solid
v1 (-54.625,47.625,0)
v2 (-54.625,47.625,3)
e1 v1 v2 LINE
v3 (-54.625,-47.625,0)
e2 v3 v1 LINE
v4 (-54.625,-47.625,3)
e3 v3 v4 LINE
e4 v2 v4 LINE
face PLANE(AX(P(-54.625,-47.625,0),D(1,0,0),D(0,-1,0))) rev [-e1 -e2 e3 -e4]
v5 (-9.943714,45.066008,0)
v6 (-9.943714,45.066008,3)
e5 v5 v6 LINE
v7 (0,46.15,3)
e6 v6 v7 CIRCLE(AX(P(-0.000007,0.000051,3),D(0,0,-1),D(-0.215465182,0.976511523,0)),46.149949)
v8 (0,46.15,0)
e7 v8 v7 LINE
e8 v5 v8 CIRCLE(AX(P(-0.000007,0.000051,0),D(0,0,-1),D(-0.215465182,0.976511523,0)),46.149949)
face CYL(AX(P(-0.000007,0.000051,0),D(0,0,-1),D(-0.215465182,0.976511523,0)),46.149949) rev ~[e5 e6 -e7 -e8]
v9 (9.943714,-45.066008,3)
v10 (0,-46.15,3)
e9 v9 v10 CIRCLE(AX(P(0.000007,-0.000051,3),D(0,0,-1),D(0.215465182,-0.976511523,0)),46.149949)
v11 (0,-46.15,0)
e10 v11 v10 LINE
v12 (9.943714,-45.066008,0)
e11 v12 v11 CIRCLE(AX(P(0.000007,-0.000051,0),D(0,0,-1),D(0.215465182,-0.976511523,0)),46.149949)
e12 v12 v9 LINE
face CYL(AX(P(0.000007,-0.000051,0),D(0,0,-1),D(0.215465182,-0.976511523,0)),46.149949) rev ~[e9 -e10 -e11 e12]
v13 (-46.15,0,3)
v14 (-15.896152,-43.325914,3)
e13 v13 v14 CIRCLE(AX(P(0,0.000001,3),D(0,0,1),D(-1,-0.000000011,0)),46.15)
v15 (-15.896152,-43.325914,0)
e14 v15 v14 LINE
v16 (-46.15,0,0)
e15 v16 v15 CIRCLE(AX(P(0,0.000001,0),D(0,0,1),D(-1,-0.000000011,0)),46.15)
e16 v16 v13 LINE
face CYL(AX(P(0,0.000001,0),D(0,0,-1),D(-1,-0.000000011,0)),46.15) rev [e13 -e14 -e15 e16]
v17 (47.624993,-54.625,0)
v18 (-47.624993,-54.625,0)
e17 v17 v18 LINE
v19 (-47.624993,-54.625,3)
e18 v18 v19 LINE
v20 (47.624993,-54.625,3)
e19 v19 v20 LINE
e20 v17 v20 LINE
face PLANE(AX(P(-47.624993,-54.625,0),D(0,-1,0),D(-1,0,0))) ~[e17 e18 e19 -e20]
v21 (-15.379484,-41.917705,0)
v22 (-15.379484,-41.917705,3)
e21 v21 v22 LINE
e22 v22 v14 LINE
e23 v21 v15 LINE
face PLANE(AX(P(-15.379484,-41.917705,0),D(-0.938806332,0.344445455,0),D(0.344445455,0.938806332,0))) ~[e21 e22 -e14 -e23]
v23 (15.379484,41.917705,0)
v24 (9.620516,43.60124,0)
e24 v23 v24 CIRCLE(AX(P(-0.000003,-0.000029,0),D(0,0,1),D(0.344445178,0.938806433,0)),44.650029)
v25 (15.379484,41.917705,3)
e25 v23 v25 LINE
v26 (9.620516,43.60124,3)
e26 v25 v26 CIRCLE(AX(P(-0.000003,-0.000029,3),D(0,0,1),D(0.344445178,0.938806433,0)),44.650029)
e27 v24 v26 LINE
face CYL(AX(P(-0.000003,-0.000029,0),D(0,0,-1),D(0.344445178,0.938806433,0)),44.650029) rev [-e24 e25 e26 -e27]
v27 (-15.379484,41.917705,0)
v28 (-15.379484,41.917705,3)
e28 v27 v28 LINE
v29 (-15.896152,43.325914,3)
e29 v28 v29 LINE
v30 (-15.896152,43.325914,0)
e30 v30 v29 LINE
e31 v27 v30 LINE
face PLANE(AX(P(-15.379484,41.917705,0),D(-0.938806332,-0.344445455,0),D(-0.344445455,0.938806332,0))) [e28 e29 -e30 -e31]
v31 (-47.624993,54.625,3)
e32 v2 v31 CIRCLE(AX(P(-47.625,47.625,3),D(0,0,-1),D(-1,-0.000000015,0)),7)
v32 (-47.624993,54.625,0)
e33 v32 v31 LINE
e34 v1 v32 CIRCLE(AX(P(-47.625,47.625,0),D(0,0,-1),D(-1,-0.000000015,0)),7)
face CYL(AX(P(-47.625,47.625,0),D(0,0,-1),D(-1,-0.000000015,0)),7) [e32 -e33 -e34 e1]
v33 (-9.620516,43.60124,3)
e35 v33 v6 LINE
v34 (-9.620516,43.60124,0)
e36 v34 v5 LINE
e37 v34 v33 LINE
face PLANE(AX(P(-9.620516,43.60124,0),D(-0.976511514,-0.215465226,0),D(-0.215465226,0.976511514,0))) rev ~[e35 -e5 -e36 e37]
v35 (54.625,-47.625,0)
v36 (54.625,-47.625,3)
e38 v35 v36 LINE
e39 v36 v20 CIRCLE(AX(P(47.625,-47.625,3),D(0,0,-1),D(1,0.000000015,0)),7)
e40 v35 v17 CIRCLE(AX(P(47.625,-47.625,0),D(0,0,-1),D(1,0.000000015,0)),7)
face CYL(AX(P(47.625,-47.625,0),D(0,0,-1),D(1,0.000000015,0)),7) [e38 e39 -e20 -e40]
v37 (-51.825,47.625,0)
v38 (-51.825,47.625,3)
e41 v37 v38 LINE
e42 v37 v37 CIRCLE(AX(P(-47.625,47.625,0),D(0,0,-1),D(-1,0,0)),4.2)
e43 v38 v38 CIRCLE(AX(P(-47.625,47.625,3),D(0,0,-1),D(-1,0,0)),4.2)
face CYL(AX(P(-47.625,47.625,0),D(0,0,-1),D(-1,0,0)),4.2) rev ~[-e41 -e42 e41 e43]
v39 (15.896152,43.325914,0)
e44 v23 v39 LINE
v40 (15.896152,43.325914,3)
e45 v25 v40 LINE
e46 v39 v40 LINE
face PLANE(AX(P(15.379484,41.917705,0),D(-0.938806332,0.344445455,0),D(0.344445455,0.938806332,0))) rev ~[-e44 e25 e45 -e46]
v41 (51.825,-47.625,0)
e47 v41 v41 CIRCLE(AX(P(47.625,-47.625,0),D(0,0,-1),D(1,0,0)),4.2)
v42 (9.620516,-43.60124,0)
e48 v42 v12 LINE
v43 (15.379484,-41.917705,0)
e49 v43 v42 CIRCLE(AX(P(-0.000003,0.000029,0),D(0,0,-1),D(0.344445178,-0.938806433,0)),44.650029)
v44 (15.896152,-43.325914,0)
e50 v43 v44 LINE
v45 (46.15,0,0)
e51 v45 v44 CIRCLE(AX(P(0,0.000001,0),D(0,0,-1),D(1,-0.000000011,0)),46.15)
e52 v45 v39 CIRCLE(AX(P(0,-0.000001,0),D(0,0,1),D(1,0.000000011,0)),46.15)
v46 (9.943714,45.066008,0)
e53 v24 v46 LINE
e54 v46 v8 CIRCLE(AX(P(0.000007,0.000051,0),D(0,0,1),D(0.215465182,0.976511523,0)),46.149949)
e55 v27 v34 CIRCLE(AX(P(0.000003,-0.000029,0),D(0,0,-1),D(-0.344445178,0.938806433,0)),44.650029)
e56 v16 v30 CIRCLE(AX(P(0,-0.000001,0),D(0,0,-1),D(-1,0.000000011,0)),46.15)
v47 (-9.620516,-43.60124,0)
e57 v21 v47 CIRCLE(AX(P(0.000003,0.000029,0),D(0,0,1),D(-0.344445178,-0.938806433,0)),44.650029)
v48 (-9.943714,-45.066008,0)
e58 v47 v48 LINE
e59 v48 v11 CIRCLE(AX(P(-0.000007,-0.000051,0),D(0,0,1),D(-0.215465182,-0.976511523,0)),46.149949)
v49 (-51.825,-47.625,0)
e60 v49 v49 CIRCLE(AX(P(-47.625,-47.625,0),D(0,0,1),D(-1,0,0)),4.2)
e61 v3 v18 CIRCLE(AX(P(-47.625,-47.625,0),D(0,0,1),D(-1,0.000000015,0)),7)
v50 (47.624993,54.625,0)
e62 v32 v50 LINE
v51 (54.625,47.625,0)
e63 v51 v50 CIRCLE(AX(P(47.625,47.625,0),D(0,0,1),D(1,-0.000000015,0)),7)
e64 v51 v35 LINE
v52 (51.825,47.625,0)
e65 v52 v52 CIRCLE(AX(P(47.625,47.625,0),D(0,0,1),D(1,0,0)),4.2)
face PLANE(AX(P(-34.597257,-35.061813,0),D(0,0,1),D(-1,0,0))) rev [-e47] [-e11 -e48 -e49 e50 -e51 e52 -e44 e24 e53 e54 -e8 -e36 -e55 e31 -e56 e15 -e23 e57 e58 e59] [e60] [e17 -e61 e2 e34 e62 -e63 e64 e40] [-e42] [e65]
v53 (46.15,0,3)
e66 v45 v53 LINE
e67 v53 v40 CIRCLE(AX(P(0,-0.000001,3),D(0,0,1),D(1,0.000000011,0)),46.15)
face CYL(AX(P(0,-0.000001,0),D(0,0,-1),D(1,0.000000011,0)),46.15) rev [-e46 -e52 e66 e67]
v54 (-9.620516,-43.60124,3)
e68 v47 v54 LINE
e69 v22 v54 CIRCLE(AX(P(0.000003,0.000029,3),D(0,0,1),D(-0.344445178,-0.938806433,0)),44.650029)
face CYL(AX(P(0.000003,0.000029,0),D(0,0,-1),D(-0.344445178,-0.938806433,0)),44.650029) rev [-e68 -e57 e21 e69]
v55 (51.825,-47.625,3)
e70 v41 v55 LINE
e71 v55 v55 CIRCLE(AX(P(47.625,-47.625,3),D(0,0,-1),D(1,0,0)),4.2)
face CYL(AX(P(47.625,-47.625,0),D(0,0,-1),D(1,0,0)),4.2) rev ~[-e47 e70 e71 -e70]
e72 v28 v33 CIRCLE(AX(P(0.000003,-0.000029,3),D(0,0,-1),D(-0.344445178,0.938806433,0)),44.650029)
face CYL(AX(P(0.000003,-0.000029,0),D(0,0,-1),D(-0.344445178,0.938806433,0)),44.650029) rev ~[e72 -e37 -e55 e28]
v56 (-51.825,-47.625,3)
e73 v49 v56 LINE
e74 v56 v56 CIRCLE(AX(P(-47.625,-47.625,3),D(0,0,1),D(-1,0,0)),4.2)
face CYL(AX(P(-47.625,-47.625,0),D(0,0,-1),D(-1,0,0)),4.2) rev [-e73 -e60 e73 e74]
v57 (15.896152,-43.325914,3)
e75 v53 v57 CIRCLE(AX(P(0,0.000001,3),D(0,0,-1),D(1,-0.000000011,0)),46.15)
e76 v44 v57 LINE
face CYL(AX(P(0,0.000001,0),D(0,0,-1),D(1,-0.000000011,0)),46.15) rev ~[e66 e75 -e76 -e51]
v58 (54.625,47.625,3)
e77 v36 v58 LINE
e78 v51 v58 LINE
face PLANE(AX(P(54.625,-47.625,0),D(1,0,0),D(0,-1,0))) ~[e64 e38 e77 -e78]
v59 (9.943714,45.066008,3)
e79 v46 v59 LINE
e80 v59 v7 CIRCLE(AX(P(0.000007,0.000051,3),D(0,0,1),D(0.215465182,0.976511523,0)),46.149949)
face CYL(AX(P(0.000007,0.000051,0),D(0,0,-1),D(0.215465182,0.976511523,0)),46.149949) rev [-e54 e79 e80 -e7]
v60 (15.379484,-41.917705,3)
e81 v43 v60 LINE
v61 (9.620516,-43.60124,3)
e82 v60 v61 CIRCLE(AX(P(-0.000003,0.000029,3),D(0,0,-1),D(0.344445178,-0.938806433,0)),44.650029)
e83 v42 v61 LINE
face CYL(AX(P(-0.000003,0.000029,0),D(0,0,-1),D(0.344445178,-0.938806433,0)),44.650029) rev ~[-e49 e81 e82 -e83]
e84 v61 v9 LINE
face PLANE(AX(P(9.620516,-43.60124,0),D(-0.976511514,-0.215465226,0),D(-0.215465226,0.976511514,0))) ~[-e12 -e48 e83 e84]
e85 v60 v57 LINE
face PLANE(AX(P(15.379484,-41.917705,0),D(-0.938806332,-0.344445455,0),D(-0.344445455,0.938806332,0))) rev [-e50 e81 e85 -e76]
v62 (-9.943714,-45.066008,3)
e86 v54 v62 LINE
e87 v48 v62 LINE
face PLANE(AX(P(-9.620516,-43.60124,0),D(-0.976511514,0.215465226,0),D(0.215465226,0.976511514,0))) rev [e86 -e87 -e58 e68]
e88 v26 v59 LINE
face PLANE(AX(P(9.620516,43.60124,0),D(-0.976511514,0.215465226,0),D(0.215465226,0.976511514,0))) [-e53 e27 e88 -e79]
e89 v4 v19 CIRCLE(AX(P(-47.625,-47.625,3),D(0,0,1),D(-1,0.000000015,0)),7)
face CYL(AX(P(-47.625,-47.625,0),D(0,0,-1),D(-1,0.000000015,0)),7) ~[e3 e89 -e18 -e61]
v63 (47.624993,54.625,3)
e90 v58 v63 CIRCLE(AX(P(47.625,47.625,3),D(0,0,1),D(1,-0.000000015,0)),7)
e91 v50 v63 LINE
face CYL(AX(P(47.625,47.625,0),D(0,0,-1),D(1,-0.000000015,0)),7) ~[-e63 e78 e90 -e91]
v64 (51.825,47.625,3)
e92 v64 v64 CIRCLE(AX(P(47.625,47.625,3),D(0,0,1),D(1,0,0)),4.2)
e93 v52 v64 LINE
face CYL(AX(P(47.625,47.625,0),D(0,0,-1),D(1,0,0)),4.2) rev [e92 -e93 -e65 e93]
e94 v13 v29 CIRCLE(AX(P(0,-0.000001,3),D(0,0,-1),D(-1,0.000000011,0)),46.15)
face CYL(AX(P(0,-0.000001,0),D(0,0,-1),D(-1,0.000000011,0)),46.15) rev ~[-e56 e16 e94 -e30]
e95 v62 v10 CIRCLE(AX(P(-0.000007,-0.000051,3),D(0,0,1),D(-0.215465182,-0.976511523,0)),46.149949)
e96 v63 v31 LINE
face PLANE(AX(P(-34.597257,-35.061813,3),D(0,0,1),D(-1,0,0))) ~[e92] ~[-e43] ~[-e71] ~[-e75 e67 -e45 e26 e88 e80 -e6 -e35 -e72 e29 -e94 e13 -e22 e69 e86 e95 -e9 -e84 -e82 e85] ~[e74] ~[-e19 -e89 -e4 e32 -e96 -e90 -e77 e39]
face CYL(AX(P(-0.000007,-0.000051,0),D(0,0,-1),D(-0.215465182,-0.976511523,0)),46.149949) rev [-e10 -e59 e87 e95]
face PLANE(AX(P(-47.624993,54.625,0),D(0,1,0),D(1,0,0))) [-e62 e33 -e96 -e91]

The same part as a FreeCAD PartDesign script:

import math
import FreeCAD as App
import Part
import Sketcher

V = App.Vector
Q = App.Units.Quantity

doc = App.newDocument("Part")
body = doc.addObject("PartDesign::Body", "Body")

# Sketch on XY plane
sketch1 = body.newObject("Sketcher::SketchObject", "Sketch")
sketch1.AttachmentSupport = (doc.getObject("XY_Plane"), [""])
sketch1.MapMode = "FlatFace"
sketch1.addGeometry([
    Part.ArcOfCircle(Part.Circle(V(0, -0.000001, 0), V(0, 0, 1), 46.15), math.radians(0.000001), math.radians(69.852059)),  # 0
    Part.LineSegment(V(46.15, 0, 0), V(54.625, 0, 0)),  # 1
    Part.LineSegment(V(54.625, 0, 0), V(54.625, 47.625, 0)),  # 2
    Part.ArcOfCircle(Part.Circle(V(47.625, 47.625, 0), V(0, 0, 1), 7), math.radians(-0.000001), math.radians(90.000058)),  # 3
    Part.LineSegment(V(47.624993, 54.625, 0), V(0, 54.625, 0)),  # 4
    Part.LineSegment(V(0, 54.625, 0), V(0, 46.15, 0)),  # 5
    Part.ArcOfCircle(Part.Circle(V(0.000007, 0.000051, 0), V(0, 0, 1), 46.149949), math.radians(77.55718), math.radians(90.000008)),  # 6
    Part.LineSegment(V(9.943714, 45.066008, 0), V(9.620516, 43.60124, 0)),  # 7
    Part.ArcOfCircle(Part.Circle(V(-0.000003, -0.000029, 0), V(0, 0, 1), 44.650029), math.radians(69.852069), math.radians(77.55719)),  # 8
    Part.LineSegment(V(15.379484, 41.917705, 0), V(15.896152, 43.325914, 0)),  # 9
    Part.Circle(V(47.625, 47.625, 0), V(0, 0, 1), 4.2),  # 10
], False)
sketch1.addConstraint([
    Sketcher.Constraint("Coincident", 0, 1, 1, 1),
    Sketcher.Constraint("Coincident", 1, 2, 2, 1),
    Sketcher.Constraint("Tangent", 2, 2, 3, 1),
    Sketcher.Constraint("Tangent", 3, 2, 4, 1),
    Sketcher.Constraint("Coincident", 4, 2, 5, 1),
    Sketcher.Constraint("Coincident", 5, 2, 6, 2),
    Sketcher.Constraint("Coincident", 6, 1, 7, 1),
    Sketcher.Constraint("Coincident", 7, 2, 8, 2),
    Sketcher.Constraint("Coincident", 8, 1, 9, 1),
    Sketcher.Constraint("Coincident", 9, 2, 0, 2),
    Sketcher.Constraint("Horizontal", 1),
    Sketcher.Constraint("Vertical", 2),
    Sketcher.Constraint("Horizontal", 4),
    Sketcher.Constraint("Vertical", 5),
    Sketcher.Constraint("Coincident", 0, 3, -1, 1),
    Sketcher.Constraint("Coincident", 10, 3, 3, 3),
    Sketcher.Constraint("PointOnObject", 0, 1, -1),
    Sketcher.Constraint("PointOnObject", 4, 2, -2),
    Sketcher.Constraint("Equal", 1, 5),
    Sketcher.Constraint("Equal", 7, 9),
    Sketcher.Constraint("Radius", 3, Q("7 mm")),
    Sketcher.Constraint("Diameter", 10, Q("8.4 mm")),
    Sketcher.Constraint("Radius", 0, Q("46.15 mm")),
    Sketcher.Constraint("Distance", 7, Q("1.500001 mm")),
    Sketcher.Constraint("DistanceX", 1, 1, 1, 2, Q("8.475 mm")),
    Sketcher.Constraint("DistanceY", 2, 1, 2, 2, Q("47.625 mm")),
    Sketcher.Constraint("Radius", 6, Q("46.149949 mm")),
    Sketcher.Constraint("Radius", 8, Q("44.650029 mm")),
    Sketcher.Constraint("DistanceX", 7, 2, 6, 1, Q("0.323198 mm")),
    Sketcher.Constraint("DistanceY", -1, 1, 6, 1, Q("45.066008 mm")),
    Sketcher.Constraint("DistanceY", 8, 3, 3, 3, Q("47.625029 mm")),
    Sketcher.Constraint("DistanceX", 6, 1, 8, 1, Q("5.43577 mm")),
    Sketcher.Constraint("DistanceX", 8, 1, 9, 2, Q("0.516668 mm")),
])
pad1 = body.newObject("PartDesign::Pad", "Pad")
pad1.Profile = sketch1
pad1.Length = 3

# Sketch on XY plane
sketch2 = body.newObject("Sketcher::SketchObject", "Sketch001")
sketch2.AttachmentSupport = (doc.getObject("XY_Plane"), [""])
sketch2.MapMode = "FlatFace"
sketch2.addGeometry([
    Part.ArcOfCircle(Part.Circle(V(0, -0.000001, 0), V(0, 0, 1), 46.15), math.radians(110.147941), math.radians(179.999999)),  # 0
    Part.LineSegment(V(-46.15, 0, 0), V(-54.625, 0, 0)),  # 1
    Part.LineSegment(V(-54.625, 0, 0), V(-54.625, 47.625, 0)),  # 2
    Part.ArcOfCircle(Part.Circle(V(-47.625, 47.625, 0), V(0, 0, 1), 7), math.radians(89.999942), math.radians(180.000001)),  # 3
    Part.LineSegment(V(-47.624993, 54.625, 0), V(0, 54.625, 0)),  # 4
    Part.LineSegment(V(0, 54.625, 0), V(0, 46.15, 0)),  # 5
    Part.ArcOfCircle(Part.Circle(V(-0.000007, 0.000051, 0), V(0, 0, 1), 46.149949), math.radians(89.999992), math.radians(102.44282)),  # 6
    Part.LineSegment(V(-9.943714, 45.066008, 0), V(-9.620516, 43.60124, 0)),  # 7
    Part.ArcOfCircle(Part.Circle(V(0.000003, -0.000029, 0), V(0, 0, 1), 44.650029), math.radians(102.44281), math.radians(110.147931)),  # 8
    Part.LineSegment(V(-15.379484, 41.917705, 0), V(-15.896152, 43.325914, 0)),  # 9
    Part.Circle(V(-47.625, 47.625, 0), V(0, 0, 1), 4.2),  # 10
], False)
sketch2.addConstraint([
    Sketcher.Constraint("Coincident", 0, 2, 1, 1),
    Sketcher.Constraint("Coincident", 1, 2, 2, 1),
    Sketcher.Constraint("Tangent", 2, 2, 3, 2),
    Sketcher.Constraint("Tangent", 3, 1, 4, 1),
    Sketcher.Constraint("Coincident", 4, 2, 5, 1),
    Sketcher.Constraint("Coincident", 5, 2, 6, 1),
    Sketcher.Constraint("Coincident", 6, 2, 7, 1),
    Sketcher.Constraint("Coincident", 7, 2, 8, 1),
    Sketcher.Constraint("Coincident", 8, 2, 9, 1),
    Sketcher.Constraint("Coincident", 9, 2, 0, 1),
    Sketcher.Constraint("Horizontal", 1),
    Sketcher.Constraint("Vertical", 2),
    Sketcher.Constraint("Horizontal", 4),
    Sketcher.Constraint("Vertical", 5),
    Sketcher.Constraint("Coincident", 0, 3, -1, 1),
    Sketcher.Constraint("Coincident", 10, 3, 3, 3),
    Sketcher.Constraint("PointOnObject", 0, 2, -1),
    Sketcher.Constraint("PointOnObject", 4, 2, -2),
    Sketcher.Constraint("Equal", 1, 5),
    Sketcher.Constraint("Equal", 7, 9),
    Sketcher.Constraint("Radius", 3, Q("7 mm")),
    Sketcher.Constraint("Diameter", 10, Q("8.4 mm")),
    Sketcher.Constraint("Radius", 0, Q("46.15 mm")),
    Sketcher.Constraint("Distance", 7, Q("1.500001 mm")),
    Sketcher.Constraint("DistanceX", 1, 2, 1, 1, Q("8.475 mm")),
    Sketcher.Constraint("DistanceY", 2, 1, 2, 2, Q("47.625 mm")),
    Sketcher.Constraint("Radius", 6, Q("46.149949 mm")),
    Sketcher.Constraint("Radius", 8, Q("44.650029 mm")),
    Sketcher.Constraint("DistanceX", 6, 2, 7, 2, Q("0.323198 mm")),
    Sketcher.Constraint("DistanceY", -1, 1, 6, 2, Q("45.066008 mm")),
    Sketcher.Constraint("DistanceY", 8, 3, 3, 3, Q("47.625029 mm")),
    Sketcher.Constraint("DistanceX", 8, 2, 6, 2, Q("5.43577 mm")),
    Sketcher.Constraint("DistanceX", 9, 2, 8, 2, Q("0.516668 mm")),
])
pad2 = body.newObject("PartDesign::Pad", "Pad001")
pad2.Profile = sketch2
pad2.Length = 3
doc.recompute()

mirrored = body.newObject("PartDesign::Mirrored", "Mirrored")
mirrored.Originals = [pad1, pad2]
mirrored.MirrorPlane = (doc.getObject("XZ_Plane"), [""])
body.Tip = mirrored

doc.recompute()
